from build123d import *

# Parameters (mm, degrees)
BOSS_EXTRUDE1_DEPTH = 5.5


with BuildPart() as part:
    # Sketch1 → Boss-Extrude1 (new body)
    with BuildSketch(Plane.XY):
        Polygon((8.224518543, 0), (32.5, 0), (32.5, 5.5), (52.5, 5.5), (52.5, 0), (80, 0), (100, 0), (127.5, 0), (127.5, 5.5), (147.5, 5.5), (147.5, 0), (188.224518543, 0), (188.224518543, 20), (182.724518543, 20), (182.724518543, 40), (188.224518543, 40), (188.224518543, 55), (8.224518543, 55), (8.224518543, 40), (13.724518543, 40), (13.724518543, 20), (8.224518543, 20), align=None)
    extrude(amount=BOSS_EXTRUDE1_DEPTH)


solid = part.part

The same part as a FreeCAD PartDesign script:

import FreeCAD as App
import Part
import Sketcher


def add_polygon(sketch, points):
    """Adds a closed chain of lines whose ends are joined by coincident constraints."""
    first, n = sketch.GeometryCount, len(points)
    for a, b in zip(points, points[1:] + points[:1]):
        sketch.addGeometry(Part.LineSegment(App.Vector(*a, 0), App.Vector(*b, 0)), False)
    for i in range(n):
        sketch.addConstraint(Sketcher.Constraint("Coincident", first + i, 2, first + (i + 1) % n, 1))

doc = App.newDocument("Part")
params = doc.addObject("Spreadsheet::Sheet", "Params")
for row, (alias, value) in enumerate([
    ("sketch1_width", "20 mm"),
    ("sketch1_width2", "75 mm"),
    ("sketch1_width3", "180 mm"),
    ("sketch1_height", "15 mm"),
    ("sketch1_width4", "5.5 mm"),
    ("pad1_length", "5.5 mm"),
], start=1):
    params.set(f"A{row}", alias)
    params.set(f"B{row}", "=" + value)
    params.setAlias(f"B{row}", alias)

body = doc.addObject("PartDesign::Body", "Body")

# Sketch on XY plane
sketch1 = body.newObject("Sketcher::SketchObject", "Sketch")
sketch1.AttachmentSupport = (doc.getObject("XY_Plane"), [""])
sketch1.MapMode = "FlatFace"
add_polygon(sketch1, [(8, 0), (32, 0), (32, 6), (52, 6), (52, 0), (128, 0), (128, 6), (148, 6), (148, 0), (188, 0), (188, 20), (183, 20), (183, 40), (188, 40), (188, 55), (8, 55), (8, 40), (14, 40), (14, 20), (8, 20)])  # lines 0-19
sketch1.addConstraint(Sketcher.Constraint("Horizontal", 0))
sketch1.addConstraint(Sketcher.Constraint("Vertical", 1))
sketch1.addConstraint(Sketcher.Constraint("Horizontal", 2))
sketch1.addConstraint(Sketcher.Constraint("Vertical", 3))
sketch1.addConstraint(Sketcher.Constraint("Horizontal", 4))
sketch1.addConstraint(Sketcher.Constraint("Vertical", 5))
sketch1.addConstraint(Sketcher.Constraint("Horizontal", 6))
sketch1.addConstraint(Sketcher.Constraint("Vertical", 7))
sketch1.addConstraint(Sketcher.Constraint("Horizontal", 8))
sketch1.addConstraint(Sketcher.Constraint("Vertical", 9))
sketch1.addConstraint(Sketcher.Constraint("Horizontal", 10))
sketch1.addConstraint(Sketcher.Constraint("Vertical", 11))
sketch1.addConstraint(Sketcher.Constraint("Horizontal", 12))
sketch1.addConstraint(Sketcher.Constraint("Vertical", 13))
sketch1.addConstraint(Sketcher.Constraint("Horizontal", 14))
sketch1.addConstraint(Sketcher.Constraint("Vertical", 15))
sketch1.addConstraint(Sketcher.Constraint("Horizontal", 16))
sketch1.addConstraint(Sketcher.Constraint("Vertical", 17))
sketch1.addConstraint(Sketcher.Constraint("Horizontal", 18))
sketch1.addConstraint(Sketcher.Constraint("Vertical", 19))
sketch1.addConstraint(Sketcher.Constraint("PointOnObject", 0, 2, -1))
sketch1.addConstraint(Sketcher.Constraint("PointOnObject", 3, 2, -1))
sketch1.addConstraint(Sketcher.Constraint("PointOnObject", 7, 2, -1))
sketch1.addConstraint(Sketcher.Constraint("Horizontal", 2, 2, 5, 2))
sketch1.addConstraint(Sketcher.Constraint("Horizontal", 12, 2, 15, 2))
sketch1.addConstraint(Sketcher.Constraint("Horizontal", 10, 2, 17, 2))
sketch1.addConstraint(Sketcher.Constraint("Vertical", 9, 2, 12, 2))
sketch1.addConstraint(Sketcher.Constraint("Vertical", 15, 2, 18, 2))
sketch1.addConstraint(Sketcher.Constraint("Equal", 2, 6))
sketch1.addConstraint(Sketcher.Constraint("Equal", 12, 16))
sketch1.addConstraint(Sketcher.Constraint("Equal", 18, 1))
sketch1.addConstraint(Sketcher.Constraint("Equal", 6, 9))
sketch1.addConstraint(Sketcher.Constraint("Equal", 9, 11))
sketch1.addConstraint(Sketcher.Constraint("DistanceX", 2, 1, 2, 2, 20.0))
sketch1.addConstraint(Sketcher.Constraint("DistanceX", 4, 1, 4, 2, 75.0))
sketch1.addConstraint(Sketcher.Constraint("DistanceX", 14, 2, 14, 1, 180.0))
sketch1.addConstraint(Sketcher.Constraint("DistanceY", 13, 1, 13, 2, 15.0))
sketch1.addConstraint(Sketcher.Constraint("DistanceX", 10, 2, 10, 1, 5.5))
sketch1.addConstraint(Sketcher.Constraint("DistanceX", -1, 1, 0, 2, 32.5))
sketch1.addConstraint(Sketcher.Constraint("DistanceX", 0, 1, 0, 2, 24.275481))
sketch1.setExpression("Constraints[53]", "Params.sketch1_width")
sketch1.setExpression("Constraints[54]", "Params.sketch1_width2")
sketch1.setExpression("Constraints[55]", "Params.sketch1_width3")
sketch1.setExpression("Constraints[56]", "Params.sketch1_height")
sketch1.setExpression("Constraints[57]", "Params.sketch1_width4")
pad1 = body.newObject("PartDesign::Pad", "Pad")
pad1.Profile = sketch1
pad1.setExpression("Length", "Params.pad1_length")

doc.recompute()
